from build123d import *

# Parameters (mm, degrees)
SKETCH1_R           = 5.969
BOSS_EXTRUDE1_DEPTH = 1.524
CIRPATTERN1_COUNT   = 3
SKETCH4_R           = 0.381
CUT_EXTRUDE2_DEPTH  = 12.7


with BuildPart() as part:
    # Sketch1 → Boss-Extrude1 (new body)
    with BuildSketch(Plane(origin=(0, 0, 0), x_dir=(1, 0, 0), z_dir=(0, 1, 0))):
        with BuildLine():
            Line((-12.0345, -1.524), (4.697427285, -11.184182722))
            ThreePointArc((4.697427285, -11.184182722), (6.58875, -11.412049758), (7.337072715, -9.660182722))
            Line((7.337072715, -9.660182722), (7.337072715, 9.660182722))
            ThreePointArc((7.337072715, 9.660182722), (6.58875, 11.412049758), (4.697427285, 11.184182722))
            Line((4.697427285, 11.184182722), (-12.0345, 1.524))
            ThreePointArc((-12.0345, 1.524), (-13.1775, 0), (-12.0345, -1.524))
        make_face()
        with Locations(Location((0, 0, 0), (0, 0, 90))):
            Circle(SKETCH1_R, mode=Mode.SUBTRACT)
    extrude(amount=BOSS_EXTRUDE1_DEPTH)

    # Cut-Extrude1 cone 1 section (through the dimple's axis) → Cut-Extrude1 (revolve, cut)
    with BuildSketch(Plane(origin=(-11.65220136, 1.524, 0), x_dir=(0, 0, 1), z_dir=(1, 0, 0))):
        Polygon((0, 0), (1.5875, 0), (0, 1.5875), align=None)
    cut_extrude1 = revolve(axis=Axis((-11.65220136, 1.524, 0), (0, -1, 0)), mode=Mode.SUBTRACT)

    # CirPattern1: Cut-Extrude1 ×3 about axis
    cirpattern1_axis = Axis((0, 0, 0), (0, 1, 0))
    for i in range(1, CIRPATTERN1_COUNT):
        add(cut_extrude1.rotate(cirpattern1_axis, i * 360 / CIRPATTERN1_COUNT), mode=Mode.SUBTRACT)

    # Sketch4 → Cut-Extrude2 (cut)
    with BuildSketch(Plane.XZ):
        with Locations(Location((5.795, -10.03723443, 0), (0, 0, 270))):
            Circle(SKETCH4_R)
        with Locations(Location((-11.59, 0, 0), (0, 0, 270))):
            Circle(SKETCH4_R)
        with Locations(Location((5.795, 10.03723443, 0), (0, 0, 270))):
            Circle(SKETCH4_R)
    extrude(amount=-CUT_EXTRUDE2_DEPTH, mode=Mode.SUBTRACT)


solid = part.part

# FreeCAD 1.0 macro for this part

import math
import FreeCAD as App
import Part
import Sketcher

V = App.Vector
Q = App.Units.Quantity


def add_polygon(sketch, points):
    """Adds a closed chain of lines whose ends are joined by coincident constraints."""
    first, n = sketch.GeometryCount, len(points)
    for a, b in zip(points, points[1:] + points[:1]):
        sketch.addGeometry(Part.LineSegment(App.Vector(*a, 0), App.Vector(*b, 0)), False)
    for i in range(n):
        sketch.addConstraint(Sketcher.Constraint("Coincident", first + i, 2, first + (i + 1) % n, 1))

doc = App.newDocument("Part")
params = doc.addObject("Spreadsheet::Sheet", "Params")
for row, (alias, value) in enumerate([
    ("sketch1_diameter", "0.47 in"),
    ("sketch1_radius", "0.0625 in"),
    ("pad1_length", "0.06 in"),
    ("sketch2_width", "0.0625 in"),
    ("groove_angle", "360 deg"),
    ("sketch3_diameter", "0.03 in"),
    ("pocket1_length", "0.5 in"),
], start=1):
    params.set(f"A{row}", alias)
    params.set(f"B{row}", "=" + value)
    params.setAlias(f"B{row}", alias)

body = doc.addObject("PartDesign::Body", "Body")

# Sketch on XZ plane
sketch1 = body.newObject("Sketcher::SketchObject", "Sketch")
sketch1.AttachmentSupport = (doc.getObject("XZ_Plane"), [""])
sketch1.MapMode = "FlatFace"
sketch1.addGeometry(Part.LineSegment(V(-12, 1.5, 0), V(4.7, 11.2, 0)), False)
sketch1.addGeometry(Part.ArcOfCircle(Part.Circle(V(5.8, 10, 0), V(0, 0, 1), 1.6), math.radians(-14), math.radians(134)), False)
sketch1.addGeometry(Part.LineSegment(V(7.3, 9.7, 0), V(7.3, -9.7, 0)), False)
sketch1.addGeometry(Part.ArcOfCircle(Part.Circle(V(5.8, -10, 0), V(0, 0, 1), 1.6), math.radians(-134), math.radians(14)), False)
sketch1.addGeometry(Part.LineSegment(V(4.7, -11.2, 0), V(-12, -1.5, 0)), False)
sketch1.addGeometry(Part.ArcOfCircle(Part.Circle(V(-11.6, 0, 0), V(0, 0, 1), 1.6), math.radians(106), math.radians(254)), False)
sketch1.addGeometry(Part.Circle(V(0, 0, 0), V(0, 0, 1), 6), False)
sketch1.addConstraint(Sketcher.Constraint("Coincident", 0, 2, 1, 2))
sketch1.addConstraint(Sketcher.Constraint("Coincident", 1, 1, 2, 1))
sketch1.addConstraint(Sketcher.Constraint("Coincident", 2, 2, 3, 2))
sketch1.addConstraint(Sketcher.Constraint("Coincident", 3, 1, 4, 1))
sketch1.addConstraint(Sketcher.Constraint("Coincident", 4, 2, 5, 2))
sketch1.addConstraint(Sketcher.Constraint("Coincident", 5, 1, 0, 1))
sketch1.addConstraint(Sketcher.Constraint("Vertical", 2))
sketch1.addConstraint(Sketcher.Constraint("Coincident", 6, 3, -1, 1))
sketch1.addConstraint(Sketcher.Constraint("Equal", 1, 3))
sketch1.addConstraint(Sketcher.Constraint("Equal", 3, 5))
sketch1.addConstraint(Sketcher.Constraint("Symmetric", 1, 3, 3, 3, -1))
sketch1.addConstraint(Sketcher.Constraint("Symmetric", 4, 2, 5, 1, -1))
sketch1.addConstraint(Sketcher.Constraint("Vertical", 0, 2, 3, 1))
sketch1.addConstraint(Sketcher.Constraint("Diameter", 6, Q("0.47 in")))
sketch1.addConstraint(Sketcher.Constraint("Angle", 0, Q("30 deg")))
sketch1.addConstraint(Sketcher.Constraint("Radius", 1, Q("0.0625 in")))
sketch1.addConstraint(Sketcher.Constraint("DistanceY", 4, 2, -1, 1, Q("0.06 in")))
sketch1.addConstraint(Sketcher.Constraint("DistanceY", 1, 1, 0, 2, Q("0.06 in")))
sketch1.addConstraint(Sketcher.Constraint("DistanceX", -1, 1, 1, 3, Q("5.795 mm")))
sketch1.addConstraint(Sketcher.Constraint("DistanceX", 5, 3, -1, 1, Q("11.59 mm")))
sketch1.addConstraint(Sketcher.Constraint("DistanceY", 2, 2, 2, 1, Q("19.320365 mm")))
sketch1.setExpression("Constraints[13]", "Params.sketch1_diameter")
sketch1.setExpression("Constraints[15]", "Params.sketch1_radius")
pad1 = body.newObject("PartDesign::Pad", "Pad")
pad1.Profile = sketch1
pad1.setExpression("Length", "Params.pad1_length")
pad1.Reversed = True

# Sketch on YZ plane
sketch2 = body.newObject("Sketcher::SketchObject", "Sketch001")
sketch2.AttachmentSupport = (doc.getObject("YZ_Plane"), [""])
sketch2.MapMode = "FlatFace"
sketch2.AttachmentOffset = App.Placement(V(0, 0, -11.652201), App.Rotation())
add_polygon(sketch2, [(1.5, 0), (1.5, 1.6), (-0.1, 0)])  # lines 0-2
sketch2.addConstraint(Sketcher.Constraint("Vertical", 0))
sketch2.addConstraint(Sketcher.Constraint("Horizontal", 2))
sketch2.addConstraint(Sketcher.Constraint("PointOnObject", 1, 2, -1))
sketch2.addConstraint(Sketcher.Constraint("Equal", 2, 0))
sketch2.addConstraint(Sketcher.Constraint("DistanceX", 2, 1, 2, 2, Q("0.0625 in")))
sketch2.addConstraint(Sketcher.Constraint("DistanceX", -1, 1, 0, 2, Q("0.06 in")))
sketch2.setExpression("Constraints[7]", "Params.sketch2_width")
groove = body.newObject("PartDesign::Groove", "Groove")
groove.Profile = sketch2
groove.ReferenceAxis = (sketch2, ["H_Axis"])
groove.setExpression("Angle", "Params.groove_angle")
doc.recompute()

polarpattern = body.newObject("PartDesign::PolarPattern", "PolarPattern")
polarpattern.Originals = [groove]
polarpattern.Axis = (doc.getObject("Y_Axis"), [""])
polarpattern.Angle = 360
polarpattern.Occurrences = 3
body.Tip = polarpattern

# Sketch on XZ plane
sketch3 = body.newObject("Sketcher::SketchObject", "Sketch002")
sketch3.AttachmentSupport = (doc.getObject("XZ_Plane"), [""])
sketch3.MapMode = "FlatFace"
sketch3.addGeometry(Part.Circle(V(5.79, -10.04, 0), V(0, 0, 1), 0.38), False)
sketch3.addGeometry(Part.Circle(V(-11.59, 0, 0), V(0, 0, 1), 0.38), False)
sketch3.addGeometry(Part.Circle(V(5.79, 10.04, 0), V(0, 0, 1), 0.38), False)
sketch3.addConstraint(Sketcher.Constraint("Equal", 0, 1))
sketch3.addConstraint(Sketcher.Constraint("Equal", 1, 2))
sketch3.addConstraint(Sketcher.Constraint("Symmetric", 0, 3, 2, 3, -1))
sketch3.addConstraint(Sketcher.Constraint("PointOnObject", 1, 3, -1))
sketch3.addConstraint(Sketcher.Constraint("Diameter", 0, Q("0.03 in")))
sketch3.addConstraint(Sketcher.Constraint("DistanceX", -1, 1, 0, 3, Q("5.795 mm")))
sketch3.addConstraint(Sketcher.Constraint("DistanceX", 1, 3, -1, 1, Q("11.59 mm")))
sketch3.addConstraint(Sketcher.Constraint("DistanceY", 0, 3, 2, 3, Q("20.074469 mm")))
sketch3.setExpression("Constraints[4]", "Params.sketch3_diameter")
pocket1 = body.newObject("PartDesign::Pocket", "Pocket")
pocket1.Profile = sketch3
pocket1.setExpression("Length", "Params.pocket1_length")

doc.recompute()
